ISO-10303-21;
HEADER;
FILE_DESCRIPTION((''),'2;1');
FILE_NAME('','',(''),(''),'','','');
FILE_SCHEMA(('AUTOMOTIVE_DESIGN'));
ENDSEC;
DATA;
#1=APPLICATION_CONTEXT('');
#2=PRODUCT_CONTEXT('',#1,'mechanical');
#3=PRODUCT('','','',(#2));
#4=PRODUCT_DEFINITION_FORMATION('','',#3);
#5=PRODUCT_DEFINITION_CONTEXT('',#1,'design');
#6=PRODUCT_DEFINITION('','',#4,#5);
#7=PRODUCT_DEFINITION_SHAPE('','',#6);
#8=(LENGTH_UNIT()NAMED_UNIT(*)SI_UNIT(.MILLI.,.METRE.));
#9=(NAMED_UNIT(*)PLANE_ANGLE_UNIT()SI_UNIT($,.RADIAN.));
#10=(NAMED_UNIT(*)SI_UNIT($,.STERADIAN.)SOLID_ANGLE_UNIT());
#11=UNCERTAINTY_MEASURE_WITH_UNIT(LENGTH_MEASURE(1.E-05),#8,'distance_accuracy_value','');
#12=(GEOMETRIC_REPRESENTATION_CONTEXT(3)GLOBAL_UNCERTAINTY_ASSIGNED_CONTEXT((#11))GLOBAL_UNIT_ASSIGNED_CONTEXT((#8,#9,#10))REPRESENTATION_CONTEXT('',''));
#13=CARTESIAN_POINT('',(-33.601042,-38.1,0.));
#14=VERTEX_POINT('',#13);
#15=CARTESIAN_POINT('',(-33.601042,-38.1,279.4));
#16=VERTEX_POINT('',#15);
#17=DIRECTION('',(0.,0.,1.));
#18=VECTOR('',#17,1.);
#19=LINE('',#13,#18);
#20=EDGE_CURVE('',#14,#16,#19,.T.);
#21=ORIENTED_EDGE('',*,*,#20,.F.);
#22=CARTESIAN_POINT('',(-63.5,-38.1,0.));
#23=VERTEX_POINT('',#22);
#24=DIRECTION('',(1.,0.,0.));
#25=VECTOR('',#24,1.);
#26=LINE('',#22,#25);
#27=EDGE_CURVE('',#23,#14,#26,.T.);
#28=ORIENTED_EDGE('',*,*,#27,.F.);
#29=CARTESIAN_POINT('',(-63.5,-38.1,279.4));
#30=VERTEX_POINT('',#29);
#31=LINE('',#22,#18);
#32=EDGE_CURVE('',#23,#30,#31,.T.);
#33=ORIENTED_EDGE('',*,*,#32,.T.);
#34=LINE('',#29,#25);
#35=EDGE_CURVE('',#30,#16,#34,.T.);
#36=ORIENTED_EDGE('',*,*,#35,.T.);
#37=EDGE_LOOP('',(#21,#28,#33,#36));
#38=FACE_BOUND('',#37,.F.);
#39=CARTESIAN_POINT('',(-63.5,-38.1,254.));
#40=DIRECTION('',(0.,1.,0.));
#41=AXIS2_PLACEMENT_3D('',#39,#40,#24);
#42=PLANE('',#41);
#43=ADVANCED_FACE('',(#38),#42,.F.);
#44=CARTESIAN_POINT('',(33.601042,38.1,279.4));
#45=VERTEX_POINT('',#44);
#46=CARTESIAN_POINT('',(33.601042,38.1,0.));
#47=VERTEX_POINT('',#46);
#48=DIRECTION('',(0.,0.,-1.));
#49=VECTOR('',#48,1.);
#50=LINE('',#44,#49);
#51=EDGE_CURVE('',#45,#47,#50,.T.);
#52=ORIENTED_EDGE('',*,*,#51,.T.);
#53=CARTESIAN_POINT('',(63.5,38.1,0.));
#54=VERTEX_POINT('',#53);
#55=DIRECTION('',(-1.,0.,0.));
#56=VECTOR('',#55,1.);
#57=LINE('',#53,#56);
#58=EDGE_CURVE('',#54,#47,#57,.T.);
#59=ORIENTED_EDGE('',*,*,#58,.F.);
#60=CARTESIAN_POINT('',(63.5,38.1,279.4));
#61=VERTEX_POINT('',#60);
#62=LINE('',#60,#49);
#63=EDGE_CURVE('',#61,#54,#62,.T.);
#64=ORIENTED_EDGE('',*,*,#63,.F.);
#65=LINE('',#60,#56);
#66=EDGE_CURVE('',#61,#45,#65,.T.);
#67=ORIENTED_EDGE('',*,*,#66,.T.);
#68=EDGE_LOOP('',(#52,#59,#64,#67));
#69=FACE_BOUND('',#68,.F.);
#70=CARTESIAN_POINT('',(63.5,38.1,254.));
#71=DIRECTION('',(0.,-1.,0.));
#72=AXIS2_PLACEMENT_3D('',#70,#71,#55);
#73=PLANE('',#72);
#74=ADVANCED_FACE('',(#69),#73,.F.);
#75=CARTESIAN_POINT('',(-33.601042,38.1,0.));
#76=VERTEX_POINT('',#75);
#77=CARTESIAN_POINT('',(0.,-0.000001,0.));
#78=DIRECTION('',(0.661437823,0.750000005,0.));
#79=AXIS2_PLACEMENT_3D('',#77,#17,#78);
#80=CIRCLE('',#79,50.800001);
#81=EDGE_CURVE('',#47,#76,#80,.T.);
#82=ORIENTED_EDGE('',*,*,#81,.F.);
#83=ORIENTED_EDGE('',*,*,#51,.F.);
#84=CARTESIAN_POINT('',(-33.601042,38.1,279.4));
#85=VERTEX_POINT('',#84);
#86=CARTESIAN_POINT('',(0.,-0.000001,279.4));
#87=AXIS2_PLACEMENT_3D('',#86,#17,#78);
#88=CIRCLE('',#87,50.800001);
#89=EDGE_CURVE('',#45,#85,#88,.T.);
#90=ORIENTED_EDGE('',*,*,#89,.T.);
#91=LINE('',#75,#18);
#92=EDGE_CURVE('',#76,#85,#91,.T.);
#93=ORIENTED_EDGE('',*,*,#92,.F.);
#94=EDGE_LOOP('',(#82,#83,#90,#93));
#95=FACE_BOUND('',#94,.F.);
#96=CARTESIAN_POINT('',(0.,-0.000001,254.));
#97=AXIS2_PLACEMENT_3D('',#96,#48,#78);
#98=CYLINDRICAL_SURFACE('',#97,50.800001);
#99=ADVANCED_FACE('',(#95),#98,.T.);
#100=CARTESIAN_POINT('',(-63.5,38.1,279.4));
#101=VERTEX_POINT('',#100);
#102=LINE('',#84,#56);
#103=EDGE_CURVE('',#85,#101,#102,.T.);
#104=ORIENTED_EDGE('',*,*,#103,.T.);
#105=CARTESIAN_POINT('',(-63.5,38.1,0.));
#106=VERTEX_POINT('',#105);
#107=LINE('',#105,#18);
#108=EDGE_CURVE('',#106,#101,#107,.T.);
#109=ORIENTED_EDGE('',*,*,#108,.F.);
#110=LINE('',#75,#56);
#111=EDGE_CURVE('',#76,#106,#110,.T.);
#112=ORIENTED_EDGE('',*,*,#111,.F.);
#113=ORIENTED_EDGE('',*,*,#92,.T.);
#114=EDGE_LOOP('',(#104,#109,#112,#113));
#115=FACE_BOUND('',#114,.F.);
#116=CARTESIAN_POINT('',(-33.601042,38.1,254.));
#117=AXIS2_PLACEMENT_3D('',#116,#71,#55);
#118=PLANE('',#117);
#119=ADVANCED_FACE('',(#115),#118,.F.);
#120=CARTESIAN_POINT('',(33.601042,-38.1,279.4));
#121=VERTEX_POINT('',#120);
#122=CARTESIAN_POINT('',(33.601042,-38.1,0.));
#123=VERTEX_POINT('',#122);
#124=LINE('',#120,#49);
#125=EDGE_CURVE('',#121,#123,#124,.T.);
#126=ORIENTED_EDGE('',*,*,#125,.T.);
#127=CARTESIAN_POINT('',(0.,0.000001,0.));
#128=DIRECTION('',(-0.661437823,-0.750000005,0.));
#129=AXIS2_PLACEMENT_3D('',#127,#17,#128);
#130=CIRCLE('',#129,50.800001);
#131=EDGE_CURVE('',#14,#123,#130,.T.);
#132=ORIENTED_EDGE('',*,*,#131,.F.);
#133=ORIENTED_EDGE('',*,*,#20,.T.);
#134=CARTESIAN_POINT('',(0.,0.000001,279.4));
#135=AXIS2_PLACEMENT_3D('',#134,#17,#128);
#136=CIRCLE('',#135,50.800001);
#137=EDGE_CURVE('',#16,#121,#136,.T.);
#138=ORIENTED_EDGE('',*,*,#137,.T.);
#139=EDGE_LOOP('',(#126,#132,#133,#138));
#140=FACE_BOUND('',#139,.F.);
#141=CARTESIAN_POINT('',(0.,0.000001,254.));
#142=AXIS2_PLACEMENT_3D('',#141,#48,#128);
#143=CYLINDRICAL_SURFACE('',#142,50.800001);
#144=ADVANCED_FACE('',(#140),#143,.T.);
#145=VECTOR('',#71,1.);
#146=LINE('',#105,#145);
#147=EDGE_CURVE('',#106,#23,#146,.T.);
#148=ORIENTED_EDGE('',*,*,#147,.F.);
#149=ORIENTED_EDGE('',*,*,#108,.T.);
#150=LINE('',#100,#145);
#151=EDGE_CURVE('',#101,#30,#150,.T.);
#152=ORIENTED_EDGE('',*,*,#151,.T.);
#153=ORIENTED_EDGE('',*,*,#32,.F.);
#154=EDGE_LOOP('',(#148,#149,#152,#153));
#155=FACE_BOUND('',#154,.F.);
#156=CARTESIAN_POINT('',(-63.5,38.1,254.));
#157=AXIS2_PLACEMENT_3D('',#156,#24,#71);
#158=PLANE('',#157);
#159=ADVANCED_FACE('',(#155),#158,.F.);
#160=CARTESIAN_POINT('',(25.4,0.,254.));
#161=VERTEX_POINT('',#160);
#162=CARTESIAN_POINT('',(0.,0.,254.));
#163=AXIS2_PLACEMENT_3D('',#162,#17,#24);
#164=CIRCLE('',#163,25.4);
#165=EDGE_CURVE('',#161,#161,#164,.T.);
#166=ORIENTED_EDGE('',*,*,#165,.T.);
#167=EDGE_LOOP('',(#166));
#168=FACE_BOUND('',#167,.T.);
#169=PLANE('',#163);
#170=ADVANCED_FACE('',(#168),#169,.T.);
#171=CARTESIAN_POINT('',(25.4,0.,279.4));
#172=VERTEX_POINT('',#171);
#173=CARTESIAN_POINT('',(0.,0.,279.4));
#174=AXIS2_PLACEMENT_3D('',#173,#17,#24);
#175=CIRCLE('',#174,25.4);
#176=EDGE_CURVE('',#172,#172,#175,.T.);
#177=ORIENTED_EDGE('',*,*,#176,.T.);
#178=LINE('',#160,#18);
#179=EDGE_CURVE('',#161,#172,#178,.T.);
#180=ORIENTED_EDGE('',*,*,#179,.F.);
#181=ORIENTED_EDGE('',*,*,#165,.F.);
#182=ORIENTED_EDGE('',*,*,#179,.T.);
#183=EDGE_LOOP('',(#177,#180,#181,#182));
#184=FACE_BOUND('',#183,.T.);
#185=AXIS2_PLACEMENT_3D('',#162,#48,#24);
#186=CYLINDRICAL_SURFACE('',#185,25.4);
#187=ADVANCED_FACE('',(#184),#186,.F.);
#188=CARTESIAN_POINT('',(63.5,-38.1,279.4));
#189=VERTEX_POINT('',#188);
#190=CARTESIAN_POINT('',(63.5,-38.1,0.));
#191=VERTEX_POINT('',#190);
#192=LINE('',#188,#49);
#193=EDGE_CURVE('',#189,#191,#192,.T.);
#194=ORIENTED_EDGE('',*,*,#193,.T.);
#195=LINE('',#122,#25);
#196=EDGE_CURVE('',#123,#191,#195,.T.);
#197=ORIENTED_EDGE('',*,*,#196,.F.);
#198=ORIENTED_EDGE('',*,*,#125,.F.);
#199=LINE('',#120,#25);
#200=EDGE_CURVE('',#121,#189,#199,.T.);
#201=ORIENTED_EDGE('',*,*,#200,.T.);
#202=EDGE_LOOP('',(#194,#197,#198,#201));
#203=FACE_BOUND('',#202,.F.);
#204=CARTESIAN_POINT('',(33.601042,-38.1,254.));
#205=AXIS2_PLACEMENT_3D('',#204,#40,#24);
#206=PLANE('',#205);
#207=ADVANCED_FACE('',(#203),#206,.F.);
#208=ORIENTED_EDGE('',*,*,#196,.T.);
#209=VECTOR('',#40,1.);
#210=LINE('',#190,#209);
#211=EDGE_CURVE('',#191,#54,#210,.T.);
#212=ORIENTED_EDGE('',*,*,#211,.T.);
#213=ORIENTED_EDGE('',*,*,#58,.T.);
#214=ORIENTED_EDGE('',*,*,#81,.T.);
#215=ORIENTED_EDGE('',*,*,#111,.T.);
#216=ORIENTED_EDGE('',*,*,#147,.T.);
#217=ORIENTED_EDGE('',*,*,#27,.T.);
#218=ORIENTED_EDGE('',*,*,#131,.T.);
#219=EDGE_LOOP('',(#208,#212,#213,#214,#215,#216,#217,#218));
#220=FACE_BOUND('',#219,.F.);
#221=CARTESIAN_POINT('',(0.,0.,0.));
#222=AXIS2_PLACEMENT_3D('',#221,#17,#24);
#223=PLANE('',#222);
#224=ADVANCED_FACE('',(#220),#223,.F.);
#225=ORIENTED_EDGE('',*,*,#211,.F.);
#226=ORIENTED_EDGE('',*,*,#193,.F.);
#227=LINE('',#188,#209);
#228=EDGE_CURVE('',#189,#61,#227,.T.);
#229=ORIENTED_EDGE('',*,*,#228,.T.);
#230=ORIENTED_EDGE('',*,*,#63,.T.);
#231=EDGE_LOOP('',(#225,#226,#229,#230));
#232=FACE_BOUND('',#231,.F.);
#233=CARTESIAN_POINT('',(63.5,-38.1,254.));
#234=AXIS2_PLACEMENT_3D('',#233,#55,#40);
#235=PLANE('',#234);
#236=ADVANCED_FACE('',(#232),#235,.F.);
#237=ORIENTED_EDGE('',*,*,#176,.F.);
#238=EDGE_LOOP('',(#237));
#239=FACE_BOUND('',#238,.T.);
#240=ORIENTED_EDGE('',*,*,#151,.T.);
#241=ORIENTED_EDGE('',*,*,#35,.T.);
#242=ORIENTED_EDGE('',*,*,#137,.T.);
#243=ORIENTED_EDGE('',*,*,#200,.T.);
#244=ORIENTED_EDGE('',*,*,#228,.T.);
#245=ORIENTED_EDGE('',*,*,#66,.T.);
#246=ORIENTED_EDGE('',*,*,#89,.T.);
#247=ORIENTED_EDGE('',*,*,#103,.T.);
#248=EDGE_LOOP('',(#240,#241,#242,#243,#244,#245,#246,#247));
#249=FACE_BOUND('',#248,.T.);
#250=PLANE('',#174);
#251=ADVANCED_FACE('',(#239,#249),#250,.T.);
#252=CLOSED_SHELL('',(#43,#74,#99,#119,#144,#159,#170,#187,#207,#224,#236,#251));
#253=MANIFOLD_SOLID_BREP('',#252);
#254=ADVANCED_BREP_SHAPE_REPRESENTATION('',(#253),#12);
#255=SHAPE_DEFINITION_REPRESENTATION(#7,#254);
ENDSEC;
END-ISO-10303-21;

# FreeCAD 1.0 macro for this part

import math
import FreeCAD as App
import Part
import Sketcher

V = App.Vector
Q = App.Units.Quantity

doc = App.newDocument("Part")
params = doc.addObject("Spreadsheet::Sheet", "Params")
for row, (alias, value) in enumerate([
    ("sketch1_radius", "2 in"),
    ("sketch1_height", "3 in"),
    ("pad1_length", "10 in"),
    ("sketch2_diameter", "2 in"),
    ("sketch2_radius", "2 in"),
    ("sketch2_height", "3 in"),
    ("pad2_length", "1 in"),
], start=1):
    params.set(f"A{row}", alias)
    params.set(f"B{row}", "=" + value)
    params.setAlias(f"B{row}", alias)

body = doc.addObject("PartDesign::Body", "Body")

# Sketch on XY plane
sketch1 = body.newObject("Sketcher::SketchObject", "Sketch")
sketch1.AttachmentSupport = (doc.getObject("XY_Plane"), [""])
sketch1.MapMode = "FlatFace"
sketch1.addGeometry([
    Part.LineSegment(V(-64, -38, 0), V(-34, -38, 0)),  # 0
    Part.ArcOfCircle(Part.Circle(V(0, 0, 0), V(0, 0, 1), 51), math.radians(-131), math.radians(-49)),  # 1
    Part.LineSegment(V(34, -38, 0), V(64, -38, 0)),  # 2
    Part.LineSegment(V(64, -38, 0), V(64, 38, 0)),  # 3
    Part.LineSegment(V(64, 38, 0), V(34, 38, 0)),  # 4
    Part.ArcOfCircle(Part.Circle(V(0, 0, 0), V(0, 0, 1), 51), math.radians(49), math.radians(131)),  # 5
    Part.LineSegment(V(-34, 38, 0), V(-64, 38, 0)),  # 6
    Part.LineSegment(V(-64, 38, 0), V(-64, -38, 0)),  # 7
], False)
sketch1.addConstraint([
    Sketcher.Constraint("Coincident", 0, 2, 1, 1),
    Sketcher.Constraint("Coincident", 1, 2, 2, 1),
    Sketcher.Constraint("Coincident", 2, 2, 3, 1),
    Sketcher.Constraint("Coincident", 3, 2, 4, 1),
    Sketcher.Constraint("Coincident", 4, 2, 5, 1),
    Sketcher.Constraint("Coincident", 5, 2, 6, 1),
    Sketcher.Constraint("Coincident", 6, 2, 7, 1),
    Sketcher.Constraint("Coincident", 7, 2, 0, 1),
    Sketcher.Constraint("Horizontal", 0),
    Sketcher.Constraint("Horizontal", 2),
    Sketcher.Constraint("Vertical", 3),
    Sketcher.Constraint("Horizontal", 4),
    Sketcher.Constraint("Horizontal", 6),
    Sketcher.Constraint("Vertical", 7),
    Sketcher.Constraint("Coincident", 1, 3, -1, 1),
    Sketcher.Constraint("Coincident", 5, 3, -1, 1),
    Sketcher.Constraint("Equal", 1, 5),
    Sketcher.Constraint("Symmetric", 2, 2, 6, 2, -1, 1),
    Sketcher.Constraint("Horizontal", 0, 2, 1, 2),
    Sketcher.Constraint("Horizontal", 4, 2, 5, 2),
    Sketcher.Constraint("Radius", 1, Q("2 in")),
    Sketcher.Constraint("DistanceY", 3, 1, 3, 2, Q("3 in")),
    Sketcher.Constraint("DistanceX", -1, 1, 2, 2, Q("2.5 in")),
])
sketch1.setExpression("Constraints[20]", "Params.sketch1_radius")
sketch1.setExpression("Constraints[21]", "Params.sketch1_height")
pad1 = body.newObject("PartDesign::Pad", "Pad")
pad1.Profile = sketch1
pad1.setExpression("Length", "Params.pad1_length")

# Sketch on XY plane
sketch2 = body.newObject("Sketcher::SketchObject", "Sketch001")
sketch2.AttachmentSupport = (doc.getObject("XY_Plane"), [""])
sketch2.MapMode = "FlatFace"
sketch2.AttachmentOffset = App.Placement(V(0, 0, 10 * 25.4), App.Rotation())
sketch2.addGeometry([
    Part.ArcOfCircle(Part.Circle(V(0, 0, 0), V(0, 0, 1), 51), math.radians(49), math.radians(131)),  # 0
    Part.LineSegment(V(-34, 38, 0), V(-64, 38, 0)),  # 1
    Part.LineSegment(V(-64, 38, 0), V(-64, -38, 0)),  # 2
    Part.LineSegment(V(-64, -38, 0), V(-34, -38, 0)),  # 3
    Part.ArcOfCircle(Part.Circle(V(0, 0, 0), V(0, 0, 1), 51), math.radians(-131), math.radians(-49)),  # 4
    Part.LineSegment(V(34, -38, 0), V(64, -38, 0)),  # 5
    Part.LineSegment(V(64, -38, 0), V(64, 38, 0)),  # 6
    Part.LineSegment(V(64, 38, 0), V(34, 38, 0)),  # 7
    Part.Circle(V(0, 0, 0), V(0, 0, 1), 25),  # 8
], False)
sketch2.addConstraint([
    Sketcher.Constraint("Coincident", 0, 2, 1, 1),
    Sketcher.Constraint("Coincident", 1, 2, 2, 1),
    Sketcher.Constraint("Coincident", 2, 2, 3, 1),
    Sketcher.Constraint("Coincident", 3, 2, 4, 1),
    Sketcher.Constraint("Coincident", 4, 2, 5, 1),
    Sketcher.Constraint("Coincident", 5, 2, 6, 1),
    Sketcher.Constraint("Coincident", 6, 2, 7, 1),
    Sketcher.Constraint("Coincident", 7, 2, 0, 1),
    Sketcher.Constraint("Horizontal", 1),
    Sketcher.Constraint("Vertical", 2),
    Sketcher.Constraint("Horizontal", 3),
    Sketcher.Constraint("Horizontal", 5),
    Sketcher.Constraint("Vertical", 6),
    Sketcher.Constraint("Horizontal", 7),
    Sketcher.Constraint("Coincident", 0, 3, -1, 1),
    Sketcher.Constraint("Coincident", 4, 3, -1, 1),
    Sketcher.Constraint("Coincident", 8, 3, -1, 1),
    Sketcher.Constraint("Equal", 0, 4),
    Sketcher.Constraint("Symmetric", 1, 2, 5, 2, -1, 1),
    Sketcher.Constraint("Horizontal", 3, 2, 4, 2),
    Sketcher.Constraint("Horizontal", 1, 2, 6, 2),
    Sketcher.Constraint("Diameter", 8, Q("2 in")),
    Sketcher.Constraint("Radius", 0, Q("2 in")),
    Sketcher.Constraint("DistanceY", 2, 2, 2, 1, Q("3 in")),
    Sketcher.Constraint("DistanceX", 1, 2, -1, 1, Q("2.5 in")),
])
sketch2.setExpression("Constraints[21]", "Params.sketch2_diameter")
sketch2.setExpression("Constraints[22]", "Params.sketch2_radius")
sketch2.setExpression("Constraints[23]", "Params.sketch2_height")
pad2 = body.newObject("PartDesign::Pad", "Pad001")
pad2.Profile = sketch2
pad2.setExpression("Length", "Params.pad2_length")

doc.recompute()
